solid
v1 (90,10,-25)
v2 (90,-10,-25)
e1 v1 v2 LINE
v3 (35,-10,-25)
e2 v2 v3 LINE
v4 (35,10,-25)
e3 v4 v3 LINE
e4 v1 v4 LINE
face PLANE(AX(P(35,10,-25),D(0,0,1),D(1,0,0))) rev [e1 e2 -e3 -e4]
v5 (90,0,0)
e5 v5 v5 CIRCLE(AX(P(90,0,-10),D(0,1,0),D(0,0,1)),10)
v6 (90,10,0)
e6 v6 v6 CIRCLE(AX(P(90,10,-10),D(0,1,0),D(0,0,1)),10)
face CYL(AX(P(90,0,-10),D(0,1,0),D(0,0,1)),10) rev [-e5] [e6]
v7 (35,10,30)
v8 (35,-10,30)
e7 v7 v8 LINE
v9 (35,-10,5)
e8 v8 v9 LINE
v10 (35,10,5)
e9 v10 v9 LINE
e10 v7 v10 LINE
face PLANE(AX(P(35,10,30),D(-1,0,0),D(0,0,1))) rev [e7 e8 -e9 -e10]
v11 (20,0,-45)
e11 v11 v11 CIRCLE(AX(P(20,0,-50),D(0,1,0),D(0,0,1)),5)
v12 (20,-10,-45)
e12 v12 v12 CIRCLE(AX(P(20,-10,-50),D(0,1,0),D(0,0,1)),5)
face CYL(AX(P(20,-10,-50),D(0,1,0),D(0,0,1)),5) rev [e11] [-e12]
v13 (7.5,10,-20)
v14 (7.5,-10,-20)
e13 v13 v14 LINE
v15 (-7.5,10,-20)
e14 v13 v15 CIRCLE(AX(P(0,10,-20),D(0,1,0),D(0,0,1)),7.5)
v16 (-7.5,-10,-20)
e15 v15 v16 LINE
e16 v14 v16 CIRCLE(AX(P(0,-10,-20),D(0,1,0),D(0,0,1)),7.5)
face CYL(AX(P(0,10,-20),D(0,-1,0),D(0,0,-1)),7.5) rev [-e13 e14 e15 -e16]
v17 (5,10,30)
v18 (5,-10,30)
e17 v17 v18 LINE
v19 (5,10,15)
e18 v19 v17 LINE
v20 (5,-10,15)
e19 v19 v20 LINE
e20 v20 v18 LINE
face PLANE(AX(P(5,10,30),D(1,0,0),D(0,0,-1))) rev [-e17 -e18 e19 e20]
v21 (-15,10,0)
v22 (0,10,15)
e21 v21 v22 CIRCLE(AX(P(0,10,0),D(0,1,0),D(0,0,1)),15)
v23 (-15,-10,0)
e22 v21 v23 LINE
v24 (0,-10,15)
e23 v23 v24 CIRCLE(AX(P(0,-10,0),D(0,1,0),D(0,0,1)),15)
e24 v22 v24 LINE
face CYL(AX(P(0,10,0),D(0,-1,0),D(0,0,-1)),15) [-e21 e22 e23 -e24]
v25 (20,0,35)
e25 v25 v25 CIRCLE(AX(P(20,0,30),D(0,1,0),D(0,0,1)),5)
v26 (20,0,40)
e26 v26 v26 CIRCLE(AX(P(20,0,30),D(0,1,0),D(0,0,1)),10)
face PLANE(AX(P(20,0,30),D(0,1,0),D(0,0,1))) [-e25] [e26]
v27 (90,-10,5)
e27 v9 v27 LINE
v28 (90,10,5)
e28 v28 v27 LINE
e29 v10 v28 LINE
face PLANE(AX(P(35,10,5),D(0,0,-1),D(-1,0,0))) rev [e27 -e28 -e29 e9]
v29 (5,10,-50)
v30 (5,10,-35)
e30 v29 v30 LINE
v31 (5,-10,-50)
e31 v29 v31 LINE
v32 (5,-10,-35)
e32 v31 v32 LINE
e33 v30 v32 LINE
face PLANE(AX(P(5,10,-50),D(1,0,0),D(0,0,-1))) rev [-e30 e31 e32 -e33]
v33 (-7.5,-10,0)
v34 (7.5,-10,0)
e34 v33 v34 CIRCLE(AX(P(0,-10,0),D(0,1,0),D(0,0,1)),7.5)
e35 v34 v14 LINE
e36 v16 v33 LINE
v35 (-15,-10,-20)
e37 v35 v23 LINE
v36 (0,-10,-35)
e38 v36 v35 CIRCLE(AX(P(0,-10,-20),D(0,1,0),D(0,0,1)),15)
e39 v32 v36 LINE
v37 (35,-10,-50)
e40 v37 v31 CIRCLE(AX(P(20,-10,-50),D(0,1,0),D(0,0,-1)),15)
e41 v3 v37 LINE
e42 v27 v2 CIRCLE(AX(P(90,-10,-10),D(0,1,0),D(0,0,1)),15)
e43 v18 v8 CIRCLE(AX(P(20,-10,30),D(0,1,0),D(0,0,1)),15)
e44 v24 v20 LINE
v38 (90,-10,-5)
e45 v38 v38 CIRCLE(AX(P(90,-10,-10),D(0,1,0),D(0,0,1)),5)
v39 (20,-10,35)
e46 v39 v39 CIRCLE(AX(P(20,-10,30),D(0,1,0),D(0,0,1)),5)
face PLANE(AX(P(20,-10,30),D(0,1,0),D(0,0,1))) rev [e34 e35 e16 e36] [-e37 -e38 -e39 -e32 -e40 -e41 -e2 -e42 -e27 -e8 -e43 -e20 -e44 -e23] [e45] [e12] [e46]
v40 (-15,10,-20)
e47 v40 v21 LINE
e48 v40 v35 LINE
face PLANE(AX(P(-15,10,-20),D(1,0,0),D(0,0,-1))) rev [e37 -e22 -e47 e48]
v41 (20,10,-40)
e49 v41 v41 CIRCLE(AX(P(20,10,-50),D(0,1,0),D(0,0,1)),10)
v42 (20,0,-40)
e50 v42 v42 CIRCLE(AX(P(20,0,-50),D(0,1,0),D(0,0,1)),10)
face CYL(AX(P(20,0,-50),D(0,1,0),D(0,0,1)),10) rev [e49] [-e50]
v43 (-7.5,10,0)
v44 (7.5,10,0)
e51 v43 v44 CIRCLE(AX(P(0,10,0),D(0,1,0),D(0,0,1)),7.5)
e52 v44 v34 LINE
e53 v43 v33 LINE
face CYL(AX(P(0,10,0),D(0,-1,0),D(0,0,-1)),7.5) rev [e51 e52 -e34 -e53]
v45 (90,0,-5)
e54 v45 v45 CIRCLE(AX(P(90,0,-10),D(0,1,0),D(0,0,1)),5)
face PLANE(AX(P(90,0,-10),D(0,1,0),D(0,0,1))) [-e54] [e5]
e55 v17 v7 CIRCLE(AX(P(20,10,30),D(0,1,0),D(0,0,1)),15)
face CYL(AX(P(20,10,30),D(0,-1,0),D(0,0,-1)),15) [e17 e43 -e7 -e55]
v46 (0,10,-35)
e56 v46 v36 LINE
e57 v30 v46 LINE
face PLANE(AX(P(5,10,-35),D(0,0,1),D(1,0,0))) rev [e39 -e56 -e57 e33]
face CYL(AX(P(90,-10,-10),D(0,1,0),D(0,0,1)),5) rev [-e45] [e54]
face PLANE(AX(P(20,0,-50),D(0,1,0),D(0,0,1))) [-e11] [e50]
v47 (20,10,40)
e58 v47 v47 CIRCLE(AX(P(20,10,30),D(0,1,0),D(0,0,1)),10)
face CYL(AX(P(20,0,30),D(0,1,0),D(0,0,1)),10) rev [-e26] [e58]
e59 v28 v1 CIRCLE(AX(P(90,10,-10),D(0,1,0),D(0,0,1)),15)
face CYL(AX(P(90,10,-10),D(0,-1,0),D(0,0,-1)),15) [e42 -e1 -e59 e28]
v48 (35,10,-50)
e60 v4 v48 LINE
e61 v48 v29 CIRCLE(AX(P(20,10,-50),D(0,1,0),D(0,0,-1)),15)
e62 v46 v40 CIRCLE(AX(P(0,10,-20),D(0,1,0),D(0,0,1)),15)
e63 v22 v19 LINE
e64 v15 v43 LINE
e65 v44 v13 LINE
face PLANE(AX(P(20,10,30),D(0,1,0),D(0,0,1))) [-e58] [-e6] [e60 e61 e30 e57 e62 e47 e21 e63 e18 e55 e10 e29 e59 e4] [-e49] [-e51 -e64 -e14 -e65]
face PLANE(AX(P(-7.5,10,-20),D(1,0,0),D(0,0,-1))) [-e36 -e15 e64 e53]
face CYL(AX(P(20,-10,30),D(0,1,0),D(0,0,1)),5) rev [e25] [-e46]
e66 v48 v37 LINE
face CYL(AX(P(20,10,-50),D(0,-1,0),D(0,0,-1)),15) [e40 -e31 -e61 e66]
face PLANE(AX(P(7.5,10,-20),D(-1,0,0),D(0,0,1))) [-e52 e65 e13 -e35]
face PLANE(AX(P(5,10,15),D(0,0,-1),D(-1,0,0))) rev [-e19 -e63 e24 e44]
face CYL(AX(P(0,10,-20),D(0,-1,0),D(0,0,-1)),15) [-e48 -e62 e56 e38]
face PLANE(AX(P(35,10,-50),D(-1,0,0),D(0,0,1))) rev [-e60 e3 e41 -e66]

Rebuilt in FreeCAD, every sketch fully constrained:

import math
import FreeCAD as App
import Part
import Sketcher

V = App.Vector
Q = App.Units.Quantity

doc = App.newDocument("Part")
body = doc.addObject("PartDesign::Body", "Body")

# Sketch on XZ plane
sketch1 = body.newObject("Sketcher::SketchObject", "Sketch")
sketch1.AttachmentSupport = (doc.getObject("XZ_Plane"), [""])
sketch1.MapMode = "FlatFace"
sketch1.addGeometry([
    Part.LineSegment(V(5, 15, 0), V(5, 30, 0)),  # 0
    Part.ArcOfCircle(Part.Circle(V(20, 30, 0), V(0, 0, 1), 15), math.radians(0), math.radians(180)),  # 1
    Part.LineSegment(V(35, 30, 0), V(35, 5, 0)),  # 2
    Part.LineSegment(V(35, 5, 0), V(90, 5, 0)),  # 3
    Part.ArcOfCircle(Part.Circle(V(90, -10, 0), V(0, 0, 1), 15), math.radians(-90), math.radians(90)),  # 4
    Part.LineSegment(V(90, -25, 0), V(35, -25, 0)),  # 5
    Part.LineSegment(V(35, -25, 0), V(35, -50, 0)),  # 6
    Part.ArcOfCircle(Part.Circle(V(20, -50, 0), V(0, 0, 1), 15), math.radians(180), math.radians(360)),  # 7
    Part.LineSegment(V(5, -50, 0), V(5, -35, 0)),  # 8
    Part.LineSegment(V(5, -35, 0), V(0, -35, 0)),  # 9
    Part.ArcOfCircle(Part.Circle(V(0, -20, 0), V(0, 0, 1), 15), math.radians(180), math.radians(270)),  # 10
    Part.LineSegment(V(-15, -20, 0), V(-15, 0, 0)),  # 11
    Part.ArcOfCircle(Part.Circle(V(0, 0, 0), V(0, 0, 1), 15), math.radians(90), math.radians(180)),  # 12
    Part.LineSegment(V(0, 15, 0), V(5, 15, 0)),  # 13
    Part.LineSegment(V(8, -20, 0), V(8, 0, 0)),  # 14
    Part.ArcOfCircle(Part.Circle(V(0, 0, 0), V(0, 0, 1), 8), math.radians(0), math.radians(180)),  # 15
    Part.LineSegment(V(-8, 0, 0), V(-8, -20, 0)),  # 16
    Part.ArcOfCircle(Part.Circle(V(0, -20, 0), V(0, 0, 1), 8), math.radians(180), math.radians(360)),  # 17
], False)
sketch1.addConstraint([
    Sketcher.Constraint("Tangent", 0, 2, 1, 2),
    Sketcher.Constraint("Tangent", 1, 1, 2, 1),
    Sketcher.Constraint("Coincident", 2, 2, 3, 1),
    Sketcher.Constraint("Tangent", 3, 2, 4, 2),
    Sketcher.Constraint("Tangent", 4, 1, 5, 1),
    Sketcher.Constraint("Coincident", 5, 2, 6, 1),
    Sketcher.Constraint("Tangent", 6, 2, 7, 2),
    Sketcher.Constraint("Tangent", 7, 1, 8, 1),
    Sketcher.Constraint("Coincident", 8, 2, 9, 1),
    Sketcher.Constraint("Tangent", 9, 2, 10, 2),
    Sketcher.Constraint("Tangent", 10, 1, 11, 1),
    Sketcher.Constraint("Tangent", 11, 2, 12, 2),
    Sketcher.Constraint("Tangent", 12, 1, 13, 1),
    Sketcher.Constraint("Coincident", 13, 2, 0, 1),
    Sketcher.Constraint("Tangent", 14, 2, 15, 1),
    Sketcher.Constraint("Tangent", 15, 2, 16, 1),
    Sketcher.Constraint("Tangent", 16, 2, 17, 1),
    Sketcher.Constraint("Tangent", 17, 2, 14, 1),
    Sketcher.Constraint("Vertical", 0),
    Sketcher.Constraint("Vertical", 2),
    Sketcher.Constraint("Horizontal", 3),
    Sketcher.Constraint("Horizontal", 5),
    Sketcher.Constraint("Vertical", 6),
    Sketcher.Constraint("Vertical", 8),
    Sketcher.Constraint("Horizontal", 9),
    Sketcher.Constraint("Vertical", 11),
    Sketcher.Constraint("Horizontal", 13),
    Sketcher.Constraint("Vertical", 14),
    Sketcher.Constraint("Vertical", 16),
    Sketcher.Constraint("Coincident", 12, 3, -1, 1),
    Sketcher.Constraint("Coincident", 15, 3, -1, 1),
    Sketcher.Constraint("Coincident", 17, 3, 10, 3),
    Sketcher.Constraint("Equal", 1, 4),
    Sketcher.Constraint("Equal", 4, 7),
    Sketcher.Constraint("Equal", 7, 10),
    Sketcher.Constraint("Vertical", 1, 3, 7, 3),
    Sketcher.Constraint("Equal", 2, 6),
    Sketcher.Constraint("Equal", 0, 8),
    Sketcher.Constraint("Radius", 1, Q("15 mm")),
    Sketcher.Constraint("Radius", 15, Q("7.5 mm")),
    Sketcher.Constraint("DistanceX", 3, 1, 3, 2, Q("55 mm")),
    Sketcher.Constraint("DistanceX", 9, 2, 9, 1, Q("5 mm")),
    Sketcher.Constraint("DistanceY", 0, 1, 0, 2, Q("15 mm")),
    Sketcher.Constraint("DistanceY", 2, 2, 2, 1, Q("25 mm")),
])
pad1 = body.newObject("PartDesign::Pad", "Pad")
pad1.Profile = sketch1
pad1.Length = 20
pad1.Midplane = True

# Sketch on XZ plane
sketch2 = body.newObject("Sketcher::SketchObject", "Sketch001")
sketch2.AttachmentSupport = (doc.getObject("XZ_Plane"), [""])
sketch2.MapMode = "FlatFace"
sketch2.AttachmentOffset = App.Placement(V(0, 0, -10), App.Rotation())
sketch2.addGeometry([
    Part.Circle(V(90, -10, 0), V(0, 0, 1), 10),
    Part.Circle(V(20, -50, 0), V(0, 0, 1), 10),
    Part.Circle(V(20, 30, 0), V(0, 0, 1), 10),
], False)
sketch2.addConstraint([
    Sketcher.Constraint("Equal", 0, 1),
    Sketcher.Constraint("Equal", 1, 2),
    Sketcher.Constraint("Vertical", 1, 3, 2, 3),
    Sketcher.Constraint("Diameter", 0, Q("20 mm")),
    Sketcher.Constraint("DistanceX", -1, 1, 0, 3, Q("90 mm")),
    Sketcher.Constraint("DistanceY", 0, 3, -1, 1, Q("10 mm")),
    Sketcher.Constraint("DistanceX", -1, 1, 1, 3, Q("20 mm")),
    Sketcher.Constraint("DistanceY", 1, 3, -1, 1, Q("50 mm")),
    Sketcher.Constraint("DistanceY", -1, 1, 2, 3, Q("30 mm")),
])
pocket1 = body.newObject("PartDesign::Pocket", "Pocket")
pocket1.Profile = sketch2
pocket1.Length = 10
pocket1.Reversed = True

# Sketch on XZ plane
sketch3 = body.newObject("Sketcher::SketchObject", "Sketch002")
sketch3.AttachmentSupport = (doc.getObject("XZ_Plane"), [""])
sketch3.MapMode = "FlatFace"
sketch3.AttachmentOffset = App.Placement(V(0, 0, -10), App.Rotation())
sketch3.addGeometry([
    Part.Circle(V(20, -50, 0), V(0, 0, 1), 5),
    Part.Circle(V(20, 30, 0), V(0, 0, 1), 5),
    Part.Circle(V(90, -10, 0), V(0, 0, 1), 5),
], False)
sketch3.addConstraint([
    Sketcher.Constraint("Equal", 0, 1),
    Sketcher.Constraint("Equal", 1, 2),
    Sketcher.Constraint("Vertical", 0, 3, 1, 3),
    Sketcher.Constraint("Diameter", 0, Q("10 mm")),
    Sketcher.Constraint("DistanceX", -1, 1, 0, 3, Q("20 mm")),
    Sketcher.Constraint("DistanceY", 0, 3, -1, 1, Q("50 mm")),
    Sketcher.Constraint("DistanceY", -1, 1, 1, 3, Q("30 mm")),
    Sketcher.Constraint("DistanceX", -1, 1, 2, 3, Q("90 mm")),
    Sketcher.Constraint("DistanceY", 2, 3, -1, 1, Q("10 mm")),
])
pocket2 = body.newObject("PartDesign::Pocket", "Pocket001")
pocket2.Profile = sketch3
pocket2.Type = "ThroughAll"
pocket2.Reversed = True

doc.recompute()
